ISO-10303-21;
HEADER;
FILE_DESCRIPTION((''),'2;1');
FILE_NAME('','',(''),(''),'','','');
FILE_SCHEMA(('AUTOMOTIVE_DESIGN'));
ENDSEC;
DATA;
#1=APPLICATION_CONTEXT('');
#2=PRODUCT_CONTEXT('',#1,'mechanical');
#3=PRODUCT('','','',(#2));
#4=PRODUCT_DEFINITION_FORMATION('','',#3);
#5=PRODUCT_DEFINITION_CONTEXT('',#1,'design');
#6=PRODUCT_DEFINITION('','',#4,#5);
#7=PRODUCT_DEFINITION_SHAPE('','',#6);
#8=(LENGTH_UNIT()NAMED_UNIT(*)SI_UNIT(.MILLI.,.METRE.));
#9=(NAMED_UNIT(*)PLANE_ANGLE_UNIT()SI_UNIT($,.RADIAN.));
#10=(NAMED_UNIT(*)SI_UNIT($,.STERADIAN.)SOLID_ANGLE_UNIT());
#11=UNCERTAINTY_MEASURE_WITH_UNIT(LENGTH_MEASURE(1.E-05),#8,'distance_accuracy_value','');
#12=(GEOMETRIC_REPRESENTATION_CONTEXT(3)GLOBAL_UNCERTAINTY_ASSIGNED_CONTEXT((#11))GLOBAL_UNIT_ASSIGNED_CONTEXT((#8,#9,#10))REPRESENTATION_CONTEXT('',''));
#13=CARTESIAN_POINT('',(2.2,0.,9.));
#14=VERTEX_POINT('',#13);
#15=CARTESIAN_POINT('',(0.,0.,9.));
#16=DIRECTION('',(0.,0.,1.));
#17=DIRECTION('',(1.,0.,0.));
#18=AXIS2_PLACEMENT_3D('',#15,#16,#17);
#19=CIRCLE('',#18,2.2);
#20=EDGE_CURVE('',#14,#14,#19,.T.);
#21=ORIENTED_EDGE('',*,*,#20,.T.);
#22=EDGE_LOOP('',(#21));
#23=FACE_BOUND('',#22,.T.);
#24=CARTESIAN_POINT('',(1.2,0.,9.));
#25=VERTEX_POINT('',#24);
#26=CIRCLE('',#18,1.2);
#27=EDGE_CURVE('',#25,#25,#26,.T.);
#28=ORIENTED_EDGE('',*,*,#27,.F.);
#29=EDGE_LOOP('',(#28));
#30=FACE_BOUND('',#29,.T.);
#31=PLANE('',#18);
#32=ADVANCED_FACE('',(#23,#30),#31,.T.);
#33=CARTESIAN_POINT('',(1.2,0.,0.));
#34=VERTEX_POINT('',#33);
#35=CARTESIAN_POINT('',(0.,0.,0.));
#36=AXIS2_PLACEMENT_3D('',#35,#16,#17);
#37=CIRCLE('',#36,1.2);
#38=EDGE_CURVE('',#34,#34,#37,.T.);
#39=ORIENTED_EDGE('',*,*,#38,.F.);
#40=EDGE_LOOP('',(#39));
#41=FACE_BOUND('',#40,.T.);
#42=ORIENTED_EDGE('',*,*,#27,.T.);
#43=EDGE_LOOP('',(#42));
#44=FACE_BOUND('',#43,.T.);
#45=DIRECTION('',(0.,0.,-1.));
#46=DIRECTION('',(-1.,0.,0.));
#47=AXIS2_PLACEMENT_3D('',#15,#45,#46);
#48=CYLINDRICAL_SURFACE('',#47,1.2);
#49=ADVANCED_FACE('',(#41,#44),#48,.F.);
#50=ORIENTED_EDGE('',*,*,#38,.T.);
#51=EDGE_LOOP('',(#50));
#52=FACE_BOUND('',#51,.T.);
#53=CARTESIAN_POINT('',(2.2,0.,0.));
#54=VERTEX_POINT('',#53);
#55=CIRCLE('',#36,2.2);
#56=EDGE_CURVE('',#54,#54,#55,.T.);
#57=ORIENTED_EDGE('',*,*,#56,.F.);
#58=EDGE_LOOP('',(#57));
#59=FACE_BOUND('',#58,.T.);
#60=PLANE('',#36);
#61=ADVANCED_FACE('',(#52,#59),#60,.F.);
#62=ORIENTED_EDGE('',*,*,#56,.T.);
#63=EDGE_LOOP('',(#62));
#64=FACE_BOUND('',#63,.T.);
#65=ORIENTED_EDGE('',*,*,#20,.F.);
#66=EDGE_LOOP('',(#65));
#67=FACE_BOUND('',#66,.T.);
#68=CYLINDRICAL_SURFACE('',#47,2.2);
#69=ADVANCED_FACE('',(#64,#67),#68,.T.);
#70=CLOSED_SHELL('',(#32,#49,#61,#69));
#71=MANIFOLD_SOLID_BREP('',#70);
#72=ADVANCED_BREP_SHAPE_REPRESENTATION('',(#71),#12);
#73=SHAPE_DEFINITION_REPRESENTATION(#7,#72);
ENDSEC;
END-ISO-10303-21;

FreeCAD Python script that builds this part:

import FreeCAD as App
import Part
import Sketcher

doc = App.newDocument("Part")
params = doc.addObject("Spreadsheet::Sheet", "Params")
for row, (alias, value) in enumerate([
    ("sketch1_diameter", "4.4 mm"),
    ("sketch1_diameter2", "2.4 mm"),
    ("pad1_length", "9 mm"),
], start=1):
    params.set(f"A{row}", alias)
    params.set(f"B{row}", "=" + value)
    params.setAlias(f"B{row}", alias)

body = doc.addObject("PartDesign::Body", "Body")

sketch1 = doc.addObject("Sketcher::SketchObject", "Sketch")
body.addObject(sketch1)
sketch1.AttachmentSupport = (doc.XY_Plane, [""])
sketch1.MapMode = "FlatFace"
sketch1.addGeometry(Part.Circle(App.Vector(0, 0, 0), App.Vector(0, 0, 1), 2.2), False)
sketch1.addGeometry(Part.Circle(App.Vector(0, 0, 0), App.Vector(0, 0, 1), 1.2), False)
sketch1.addConstraint(Sketcher.Constraint("Coincident", 0, 3, -1, 1))
sketch1.addConstraint(Sketcher.Constraint("Coincident", 1, 3, -1, 1))
sketch1.addConstraint(Sketcher.Constraint("Diameter", 0, 4.4))
sketch1.addConstraint(Sketcher.Constraint("Diameter", 1, 2.4))
sketch1.setExpression("Constraints[2]", "Params.sketch1_diameter")
sketch1.setExpression("Constraints[3]", "Params.sketch1_diameter2")
pad1 = doc.addObject("PartDesign::Pad", "Pad")
body.addObject(pad1)
pad1.Profile = sketch1
pad1.setExpression("Length", "Params.pad1_length")

doc.recompute()
